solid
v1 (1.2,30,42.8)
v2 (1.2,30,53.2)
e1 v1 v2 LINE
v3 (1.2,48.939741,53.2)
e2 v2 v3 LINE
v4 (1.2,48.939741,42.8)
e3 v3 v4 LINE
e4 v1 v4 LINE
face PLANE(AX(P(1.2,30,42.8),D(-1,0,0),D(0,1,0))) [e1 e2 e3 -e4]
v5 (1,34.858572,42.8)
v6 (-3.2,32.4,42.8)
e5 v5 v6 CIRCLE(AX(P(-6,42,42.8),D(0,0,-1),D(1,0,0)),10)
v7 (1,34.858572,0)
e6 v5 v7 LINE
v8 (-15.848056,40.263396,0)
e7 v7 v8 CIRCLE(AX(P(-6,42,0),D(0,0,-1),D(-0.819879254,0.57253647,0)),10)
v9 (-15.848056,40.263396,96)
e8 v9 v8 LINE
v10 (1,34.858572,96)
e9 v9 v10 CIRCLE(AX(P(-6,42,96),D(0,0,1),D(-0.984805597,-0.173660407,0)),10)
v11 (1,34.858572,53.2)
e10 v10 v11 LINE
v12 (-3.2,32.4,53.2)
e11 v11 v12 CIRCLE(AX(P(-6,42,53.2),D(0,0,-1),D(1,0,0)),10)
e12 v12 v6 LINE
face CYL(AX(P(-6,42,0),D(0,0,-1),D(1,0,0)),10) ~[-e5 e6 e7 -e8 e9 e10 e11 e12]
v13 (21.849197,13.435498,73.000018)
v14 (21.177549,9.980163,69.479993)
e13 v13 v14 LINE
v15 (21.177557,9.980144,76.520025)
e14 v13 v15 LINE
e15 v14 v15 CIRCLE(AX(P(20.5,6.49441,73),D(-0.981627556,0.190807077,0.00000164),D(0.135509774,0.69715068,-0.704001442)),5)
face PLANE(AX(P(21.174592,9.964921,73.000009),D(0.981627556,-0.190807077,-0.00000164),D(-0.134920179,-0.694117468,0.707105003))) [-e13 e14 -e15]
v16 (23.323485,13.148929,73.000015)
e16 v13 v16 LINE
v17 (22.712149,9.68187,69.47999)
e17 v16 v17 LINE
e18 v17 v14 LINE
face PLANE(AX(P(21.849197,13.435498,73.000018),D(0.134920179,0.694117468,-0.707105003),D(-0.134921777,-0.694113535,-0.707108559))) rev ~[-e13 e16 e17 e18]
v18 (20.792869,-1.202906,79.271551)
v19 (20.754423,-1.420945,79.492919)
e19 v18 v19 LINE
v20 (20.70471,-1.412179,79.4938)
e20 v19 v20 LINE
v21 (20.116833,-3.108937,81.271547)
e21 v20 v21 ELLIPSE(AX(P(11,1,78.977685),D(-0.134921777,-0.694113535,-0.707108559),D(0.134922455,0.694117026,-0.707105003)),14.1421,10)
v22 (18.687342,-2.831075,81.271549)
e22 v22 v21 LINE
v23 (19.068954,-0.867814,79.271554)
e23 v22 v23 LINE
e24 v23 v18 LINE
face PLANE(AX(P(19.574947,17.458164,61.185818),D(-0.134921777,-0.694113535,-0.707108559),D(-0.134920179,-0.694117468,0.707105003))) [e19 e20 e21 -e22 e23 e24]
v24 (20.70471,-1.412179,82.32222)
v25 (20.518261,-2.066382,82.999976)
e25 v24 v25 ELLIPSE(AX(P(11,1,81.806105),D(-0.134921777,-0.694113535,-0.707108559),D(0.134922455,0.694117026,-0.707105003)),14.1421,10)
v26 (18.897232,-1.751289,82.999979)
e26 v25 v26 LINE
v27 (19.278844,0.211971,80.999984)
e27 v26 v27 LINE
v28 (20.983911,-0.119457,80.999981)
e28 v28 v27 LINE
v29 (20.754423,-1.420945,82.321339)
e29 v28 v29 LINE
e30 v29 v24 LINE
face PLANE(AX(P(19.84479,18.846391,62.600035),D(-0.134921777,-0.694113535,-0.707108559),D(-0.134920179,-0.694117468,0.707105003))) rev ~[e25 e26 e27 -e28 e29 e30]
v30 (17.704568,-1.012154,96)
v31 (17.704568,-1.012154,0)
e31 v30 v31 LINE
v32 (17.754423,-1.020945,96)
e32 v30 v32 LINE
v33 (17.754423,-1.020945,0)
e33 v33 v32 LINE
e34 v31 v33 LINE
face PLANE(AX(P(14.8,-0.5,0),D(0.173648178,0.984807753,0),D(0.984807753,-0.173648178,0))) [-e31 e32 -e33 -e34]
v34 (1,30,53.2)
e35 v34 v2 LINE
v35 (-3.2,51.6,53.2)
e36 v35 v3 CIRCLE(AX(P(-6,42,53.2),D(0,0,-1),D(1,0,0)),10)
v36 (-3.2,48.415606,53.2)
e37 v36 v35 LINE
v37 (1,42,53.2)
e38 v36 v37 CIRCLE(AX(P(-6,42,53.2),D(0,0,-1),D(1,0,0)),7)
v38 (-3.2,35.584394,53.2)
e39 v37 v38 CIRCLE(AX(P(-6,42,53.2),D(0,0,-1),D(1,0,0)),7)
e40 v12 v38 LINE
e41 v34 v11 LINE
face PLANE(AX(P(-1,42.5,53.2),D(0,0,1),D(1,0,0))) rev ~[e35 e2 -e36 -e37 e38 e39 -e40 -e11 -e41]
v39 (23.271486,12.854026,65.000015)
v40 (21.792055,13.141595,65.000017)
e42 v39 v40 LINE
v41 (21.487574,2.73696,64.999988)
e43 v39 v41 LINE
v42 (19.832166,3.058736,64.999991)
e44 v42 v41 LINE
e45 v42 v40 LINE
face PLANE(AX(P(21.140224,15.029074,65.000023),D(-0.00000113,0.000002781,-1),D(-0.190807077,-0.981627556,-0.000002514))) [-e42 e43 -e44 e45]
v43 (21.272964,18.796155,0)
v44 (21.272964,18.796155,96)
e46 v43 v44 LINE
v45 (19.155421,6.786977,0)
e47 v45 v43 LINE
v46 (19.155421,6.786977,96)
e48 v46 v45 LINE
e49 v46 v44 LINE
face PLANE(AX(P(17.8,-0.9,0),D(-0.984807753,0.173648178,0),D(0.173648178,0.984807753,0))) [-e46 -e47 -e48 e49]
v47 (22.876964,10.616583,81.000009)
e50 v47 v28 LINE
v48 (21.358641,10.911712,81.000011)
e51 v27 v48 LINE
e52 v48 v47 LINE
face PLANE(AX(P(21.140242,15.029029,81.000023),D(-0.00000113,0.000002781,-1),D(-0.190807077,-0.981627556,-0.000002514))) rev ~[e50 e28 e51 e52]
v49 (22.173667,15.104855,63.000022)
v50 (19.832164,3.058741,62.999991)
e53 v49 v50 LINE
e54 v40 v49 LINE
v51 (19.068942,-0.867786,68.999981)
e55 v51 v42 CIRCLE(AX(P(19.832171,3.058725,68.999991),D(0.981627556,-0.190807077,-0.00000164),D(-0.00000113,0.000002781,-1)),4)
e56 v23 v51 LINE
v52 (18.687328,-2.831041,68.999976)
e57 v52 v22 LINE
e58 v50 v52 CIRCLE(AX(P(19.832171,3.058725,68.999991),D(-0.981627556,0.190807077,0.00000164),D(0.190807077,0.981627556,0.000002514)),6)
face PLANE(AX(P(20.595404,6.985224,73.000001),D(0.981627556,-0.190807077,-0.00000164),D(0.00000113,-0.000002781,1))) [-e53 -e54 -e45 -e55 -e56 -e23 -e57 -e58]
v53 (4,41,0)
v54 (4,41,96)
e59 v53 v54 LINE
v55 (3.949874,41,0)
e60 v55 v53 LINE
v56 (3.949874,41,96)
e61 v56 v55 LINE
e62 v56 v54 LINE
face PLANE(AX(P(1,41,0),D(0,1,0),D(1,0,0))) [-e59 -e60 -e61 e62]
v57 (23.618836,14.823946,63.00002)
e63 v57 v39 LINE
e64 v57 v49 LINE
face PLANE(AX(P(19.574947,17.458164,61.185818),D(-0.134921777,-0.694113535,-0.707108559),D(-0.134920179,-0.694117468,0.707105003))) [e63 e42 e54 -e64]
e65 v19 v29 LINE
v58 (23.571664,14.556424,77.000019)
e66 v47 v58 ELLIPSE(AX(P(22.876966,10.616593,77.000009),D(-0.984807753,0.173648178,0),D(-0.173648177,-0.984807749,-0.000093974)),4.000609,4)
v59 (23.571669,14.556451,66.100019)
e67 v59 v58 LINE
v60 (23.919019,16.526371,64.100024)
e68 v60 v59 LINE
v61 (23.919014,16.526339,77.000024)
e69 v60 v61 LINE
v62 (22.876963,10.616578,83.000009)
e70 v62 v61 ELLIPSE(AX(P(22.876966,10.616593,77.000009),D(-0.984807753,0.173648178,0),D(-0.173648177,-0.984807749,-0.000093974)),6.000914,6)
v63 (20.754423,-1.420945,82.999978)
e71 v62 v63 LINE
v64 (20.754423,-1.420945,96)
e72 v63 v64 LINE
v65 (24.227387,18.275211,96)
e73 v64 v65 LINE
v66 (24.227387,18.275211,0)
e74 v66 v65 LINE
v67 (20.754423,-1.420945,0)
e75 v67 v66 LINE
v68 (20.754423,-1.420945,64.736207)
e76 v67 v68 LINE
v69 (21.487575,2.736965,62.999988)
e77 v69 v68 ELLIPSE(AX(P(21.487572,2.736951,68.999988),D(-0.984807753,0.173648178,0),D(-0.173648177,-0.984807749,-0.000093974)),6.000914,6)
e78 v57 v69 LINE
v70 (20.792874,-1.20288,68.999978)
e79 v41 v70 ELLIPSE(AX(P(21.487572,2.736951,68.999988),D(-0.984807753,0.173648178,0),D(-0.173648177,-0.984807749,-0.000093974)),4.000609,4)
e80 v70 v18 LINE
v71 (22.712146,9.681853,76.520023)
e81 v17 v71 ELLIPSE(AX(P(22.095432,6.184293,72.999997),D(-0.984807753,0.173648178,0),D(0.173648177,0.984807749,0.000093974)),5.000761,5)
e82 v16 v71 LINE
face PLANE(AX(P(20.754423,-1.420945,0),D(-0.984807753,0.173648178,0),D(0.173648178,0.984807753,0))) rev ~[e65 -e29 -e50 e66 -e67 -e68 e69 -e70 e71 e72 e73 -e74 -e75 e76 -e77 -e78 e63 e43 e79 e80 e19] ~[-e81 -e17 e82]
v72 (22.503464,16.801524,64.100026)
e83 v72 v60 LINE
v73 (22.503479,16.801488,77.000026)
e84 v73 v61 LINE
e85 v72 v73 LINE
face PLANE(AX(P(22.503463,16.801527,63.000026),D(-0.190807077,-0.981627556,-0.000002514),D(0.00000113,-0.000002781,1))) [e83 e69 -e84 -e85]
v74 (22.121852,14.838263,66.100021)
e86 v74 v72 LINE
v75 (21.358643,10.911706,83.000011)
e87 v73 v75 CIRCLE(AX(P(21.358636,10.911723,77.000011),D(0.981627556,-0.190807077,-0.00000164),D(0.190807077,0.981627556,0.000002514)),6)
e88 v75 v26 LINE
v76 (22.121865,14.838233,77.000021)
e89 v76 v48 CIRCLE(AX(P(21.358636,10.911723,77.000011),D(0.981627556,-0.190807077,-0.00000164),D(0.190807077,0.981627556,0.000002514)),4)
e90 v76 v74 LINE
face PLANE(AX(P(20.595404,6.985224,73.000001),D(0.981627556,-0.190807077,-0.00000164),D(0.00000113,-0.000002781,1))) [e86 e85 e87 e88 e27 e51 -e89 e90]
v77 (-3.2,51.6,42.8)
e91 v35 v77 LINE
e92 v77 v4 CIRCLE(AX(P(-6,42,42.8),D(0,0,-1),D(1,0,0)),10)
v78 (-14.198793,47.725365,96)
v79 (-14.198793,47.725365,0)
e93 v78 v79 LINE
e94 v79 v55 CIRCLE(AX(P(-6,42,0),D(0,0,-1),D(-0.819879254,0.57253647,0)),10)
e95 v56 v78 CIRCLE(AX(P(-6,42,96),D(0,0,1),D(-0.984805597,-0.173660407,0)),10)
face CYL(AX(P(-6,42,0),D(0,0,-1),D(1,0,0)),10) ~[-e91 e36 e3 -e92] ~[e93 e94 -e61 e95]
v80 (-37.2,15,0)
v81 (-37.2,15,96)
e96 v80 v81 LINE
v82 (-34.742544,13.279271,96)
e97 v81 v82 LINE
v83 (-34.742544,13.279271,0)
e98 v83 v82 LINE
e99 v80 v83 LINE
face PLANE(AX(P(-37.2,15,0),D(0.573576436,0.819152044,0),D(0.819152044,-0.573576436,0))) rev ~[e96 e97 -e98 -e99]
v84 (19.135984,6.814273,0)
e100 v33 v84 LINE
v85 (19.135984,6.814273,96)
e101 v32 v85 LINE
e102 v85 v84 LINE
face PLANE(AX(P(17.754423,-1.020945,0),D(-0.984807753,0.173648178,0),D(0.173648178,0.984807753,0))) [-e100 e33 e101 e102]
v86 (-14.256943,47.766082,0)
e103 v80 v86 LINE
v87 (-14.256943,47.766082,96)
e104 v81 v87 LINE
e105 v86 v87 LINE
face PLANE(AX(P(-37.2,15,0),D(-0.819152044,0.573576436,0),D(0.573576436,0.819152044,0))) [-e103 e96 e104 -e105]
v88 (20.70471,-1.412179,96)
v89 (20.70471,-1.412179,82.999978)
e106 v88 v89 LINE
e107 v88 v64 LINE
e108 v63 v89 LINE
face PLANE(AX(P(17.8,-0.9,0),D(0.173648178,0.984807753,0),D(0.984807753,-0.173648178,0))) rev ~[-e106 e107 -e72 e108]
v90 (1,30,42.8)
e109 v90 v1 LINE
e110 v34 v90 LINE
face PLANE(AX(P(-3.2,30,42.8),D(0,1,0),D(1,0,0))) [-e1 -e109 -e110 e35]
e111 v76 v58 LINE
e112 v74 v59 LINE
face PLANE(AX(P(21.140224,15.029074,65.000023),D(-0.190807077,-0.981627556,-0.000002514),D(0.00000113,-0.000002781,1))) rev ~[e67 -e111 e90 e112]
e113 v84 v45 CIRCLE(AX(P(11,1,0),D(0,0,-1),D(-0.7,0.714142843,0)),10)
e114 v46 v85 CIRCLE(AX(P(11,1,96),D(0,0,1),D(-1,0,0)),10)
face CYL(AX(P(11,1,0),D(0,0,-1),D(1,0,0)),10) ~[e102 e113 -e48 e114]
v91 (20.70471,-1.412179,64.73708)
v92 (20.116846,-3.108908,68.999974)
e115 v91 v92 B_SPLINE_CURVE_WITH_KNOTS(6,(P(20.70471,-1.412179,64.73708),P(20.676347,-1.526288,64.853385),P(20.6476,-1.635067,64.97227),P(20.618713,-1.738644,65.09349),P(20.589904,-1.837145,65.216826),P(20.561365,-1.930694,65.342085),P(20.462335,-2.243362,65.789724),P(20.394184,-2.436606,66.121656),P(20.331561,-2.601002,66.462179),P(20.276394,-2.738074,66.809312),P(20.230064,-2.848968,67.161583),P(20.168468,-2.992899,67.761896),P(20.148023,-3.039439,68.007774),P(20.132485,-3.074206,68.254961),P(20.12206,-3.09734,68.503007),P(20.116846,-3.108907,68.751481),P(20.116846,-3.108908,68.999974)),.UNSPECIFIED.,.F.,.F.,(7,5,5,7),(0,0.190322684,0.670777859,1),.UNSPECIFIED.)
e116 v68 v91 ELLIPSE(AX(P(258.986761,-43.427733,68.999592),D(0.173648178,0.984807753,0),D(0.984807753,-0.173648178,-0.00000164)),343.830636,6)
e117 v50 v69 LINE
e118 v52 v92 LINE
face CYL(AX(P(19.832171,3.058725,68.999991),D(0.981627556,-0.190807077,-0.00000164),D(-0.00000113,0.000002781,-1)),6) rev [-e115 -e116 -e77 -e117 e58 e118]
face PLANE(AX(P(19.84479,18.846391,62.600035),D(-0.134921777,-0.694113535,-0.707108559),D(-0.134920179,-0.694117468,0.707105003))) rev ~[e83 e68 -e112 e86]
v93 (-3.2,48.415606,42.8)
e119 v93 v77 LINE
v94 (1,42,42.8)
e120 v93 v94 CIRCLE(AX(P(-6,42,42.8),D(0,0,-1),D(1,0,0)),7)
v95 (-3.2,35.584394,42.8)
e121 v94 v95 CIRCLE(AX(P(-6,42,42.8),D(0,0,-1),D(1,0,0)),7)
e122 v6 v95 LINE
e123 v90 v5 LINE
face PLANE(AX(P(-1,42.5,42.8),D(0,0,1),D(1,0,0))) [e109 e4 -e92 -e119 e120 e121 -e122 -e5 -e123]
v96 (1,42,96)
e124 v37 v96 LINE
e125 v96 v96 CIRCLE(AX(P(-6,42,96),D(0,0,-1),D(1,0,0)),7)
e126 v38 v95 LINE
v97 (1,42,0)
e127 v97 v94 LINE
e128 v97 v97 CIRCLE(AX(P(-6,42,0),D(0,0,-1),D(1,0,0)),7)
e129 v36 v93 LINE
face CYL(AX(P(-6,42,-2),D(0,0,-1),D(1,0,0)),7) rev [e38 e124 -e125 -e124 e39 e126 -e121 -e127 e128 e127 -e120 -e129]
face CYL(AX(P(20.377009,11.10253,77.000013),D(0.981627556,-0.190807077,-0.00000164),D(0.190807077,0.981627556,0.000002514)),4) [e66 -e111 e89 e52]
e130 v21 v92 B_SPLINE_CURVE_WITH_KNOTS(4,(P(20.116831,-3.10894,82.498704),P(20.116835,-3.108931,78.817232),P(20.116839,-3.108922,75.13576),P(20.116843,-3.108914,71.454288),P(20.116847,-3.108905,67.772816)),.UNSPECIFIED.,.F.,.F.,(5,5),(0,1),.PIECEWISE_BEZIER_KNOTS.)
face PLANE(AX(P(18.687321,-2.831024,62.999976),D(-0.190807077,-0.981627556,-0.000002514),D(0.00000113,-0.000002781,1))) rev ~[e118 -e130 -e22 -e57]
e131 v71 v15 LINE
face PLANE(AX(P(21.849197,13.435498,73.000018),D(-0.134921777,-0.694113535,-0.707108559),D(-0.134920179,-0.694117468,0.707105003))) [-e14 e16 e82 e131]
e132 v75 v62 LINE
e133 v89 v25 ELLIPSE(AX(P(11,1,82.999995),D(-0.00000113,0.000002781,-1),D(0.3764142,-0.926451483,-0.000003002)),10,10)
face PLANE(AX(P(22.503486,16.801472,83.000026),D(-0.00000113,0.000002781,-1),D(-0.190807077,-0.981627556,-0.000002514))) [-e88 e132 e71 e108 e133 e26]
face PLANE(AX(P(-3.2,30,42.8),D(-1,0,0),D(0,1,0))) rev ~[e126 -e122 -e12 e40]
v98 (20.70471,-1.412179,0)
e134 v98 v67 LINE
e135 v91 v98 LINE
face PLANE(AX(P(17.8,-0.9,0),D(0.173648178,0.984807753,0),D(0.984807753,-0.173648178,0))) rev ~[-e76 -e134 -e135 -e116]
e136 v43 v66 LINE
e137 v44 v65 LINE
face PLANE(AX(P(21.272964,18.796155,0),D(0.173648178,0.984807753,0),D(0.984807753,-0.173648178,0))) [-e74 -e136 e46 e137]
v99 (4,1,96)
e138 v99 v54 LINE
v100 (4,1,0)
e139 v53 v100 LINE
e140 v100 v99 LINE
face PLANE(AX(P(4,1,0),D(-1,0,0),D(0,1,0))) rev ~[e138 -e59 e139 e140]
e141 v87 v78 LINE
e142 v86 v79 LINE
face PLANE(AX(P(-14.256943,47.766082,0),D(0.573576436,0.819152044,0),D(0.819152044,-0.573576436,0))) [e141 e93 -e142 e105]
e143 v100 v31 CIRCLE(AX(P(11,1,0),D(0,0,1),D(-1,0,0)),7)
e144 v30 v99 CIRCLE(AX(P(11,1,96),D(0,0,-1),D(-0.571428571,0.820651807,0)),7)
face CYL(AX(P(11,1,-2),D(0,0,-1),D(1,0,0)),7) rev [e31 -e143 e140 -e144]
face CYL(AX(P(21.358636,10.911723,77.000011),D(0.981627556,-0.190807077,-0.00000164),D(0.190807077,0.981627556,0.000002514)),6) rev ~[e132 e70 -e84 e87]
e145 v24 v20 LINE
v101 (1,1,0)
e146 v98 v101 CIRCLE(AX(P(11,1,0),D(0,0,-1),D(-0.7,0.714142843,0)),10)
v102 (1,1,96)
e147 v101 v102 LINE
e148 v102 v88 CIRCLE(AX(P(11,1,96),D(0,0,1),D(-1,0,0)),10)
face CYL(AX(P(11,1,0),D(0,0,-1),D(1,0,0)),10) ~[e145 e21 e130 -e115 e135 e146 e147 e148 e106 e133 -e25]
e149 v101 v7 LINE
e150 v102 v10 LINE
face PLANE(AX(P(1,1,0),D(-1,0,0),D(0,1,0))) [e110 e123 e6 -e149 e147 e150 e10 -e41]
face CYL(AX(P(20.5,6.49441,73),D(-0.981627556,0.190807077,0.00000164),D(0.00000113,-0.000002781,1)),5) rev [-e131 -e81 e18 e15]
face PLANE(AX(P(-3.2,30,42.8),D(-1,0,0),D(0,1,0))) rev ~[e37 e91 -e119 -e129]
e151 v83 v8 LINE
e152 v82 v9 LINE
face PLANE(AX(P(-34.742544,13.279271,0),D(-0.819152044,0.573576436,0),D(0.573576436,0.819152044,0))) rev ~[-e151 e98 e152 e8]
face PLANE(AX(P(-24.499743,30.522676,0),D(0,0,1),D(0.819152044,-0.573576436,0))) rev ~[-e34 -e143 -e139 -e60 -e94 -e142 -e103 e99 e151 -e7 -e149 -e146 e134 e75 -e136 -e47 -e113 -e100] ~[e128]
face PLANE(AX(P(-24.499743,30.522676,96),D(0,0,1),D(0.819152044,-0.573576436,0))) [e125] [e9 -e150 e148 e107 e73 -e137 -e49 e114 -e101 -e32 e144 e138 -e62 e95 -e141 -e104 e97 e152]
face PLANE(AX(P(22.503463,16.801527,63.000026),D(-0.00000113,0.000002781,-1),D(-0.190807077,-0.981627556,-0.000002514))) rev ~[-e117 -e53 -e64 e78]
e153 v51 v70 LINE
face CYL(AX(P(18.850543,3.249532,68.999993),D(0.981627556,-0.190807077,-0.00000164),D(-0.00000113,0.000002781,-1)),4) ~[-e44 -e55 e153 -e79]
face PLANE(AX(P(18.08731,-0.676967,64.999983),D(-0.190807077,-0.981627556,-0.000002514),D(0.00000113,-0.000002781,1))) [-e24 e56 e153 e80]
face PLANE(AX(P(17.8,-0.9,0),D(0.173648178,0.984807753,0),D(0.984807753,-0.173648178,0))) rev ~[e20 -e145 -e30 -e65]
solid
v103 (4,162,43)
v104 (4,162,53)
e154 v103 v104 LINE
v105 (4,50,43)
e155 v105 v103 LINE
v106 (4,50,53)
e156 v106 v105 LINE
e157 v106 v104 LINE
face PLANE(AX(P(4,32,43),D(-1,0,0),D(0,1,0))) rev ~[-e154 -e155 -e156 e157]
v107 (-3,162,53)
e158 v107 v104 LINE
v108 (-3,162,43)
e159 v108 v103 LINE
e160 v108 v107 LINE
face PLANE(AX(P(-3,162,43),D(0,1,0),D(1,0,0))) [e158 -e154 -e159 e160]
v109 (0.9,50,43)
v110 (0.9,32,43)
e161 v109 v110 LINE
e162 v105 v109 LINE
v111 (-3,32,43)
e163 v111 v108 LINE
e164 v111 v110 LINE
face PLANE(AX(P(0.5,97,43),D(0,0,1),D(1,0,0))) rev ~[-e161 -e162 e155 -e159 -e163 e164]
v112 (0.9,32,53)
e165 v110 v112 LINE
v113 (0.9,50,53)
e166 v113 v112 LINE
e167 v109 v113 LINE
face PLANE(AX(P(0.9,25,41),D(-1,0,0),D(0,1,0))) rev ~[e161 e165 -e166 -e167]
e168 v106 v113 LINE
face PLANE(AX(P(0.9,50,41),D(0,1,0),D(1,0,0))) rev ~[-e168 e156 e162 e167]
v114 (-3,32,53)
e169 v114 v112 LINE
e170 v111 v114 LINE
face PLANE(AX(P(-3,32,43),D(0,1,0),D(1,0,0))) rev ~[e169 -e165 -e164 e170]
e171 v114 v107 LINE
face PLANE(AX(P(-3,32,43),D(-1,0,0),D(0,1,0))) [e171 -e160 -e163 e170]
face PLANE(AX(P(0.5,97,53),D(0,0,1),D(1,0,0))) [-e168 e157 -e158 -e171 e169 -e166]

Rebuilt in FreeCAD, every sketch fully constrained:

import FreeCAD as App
import Part
import Sketcher
from FreeCAD import Vector


def edges_at(feature, points):
    """Names of the edges that pass closest to the given points."""
    edges = feature.Shape.Edges
    near = lambda p: min(range(len(edges)), key=lambda i: edges[i].distToShape(Part.Vertex(*p))[0])
    return sorted({f"Edge{near(p) + 1}" for p in points})


def add_polygon(sketch, points):
    """Adds a closed chain of lines whose ends are joined by coincident constraints."""
    first, n = sketch.GeometryCount, len(points)
    for a, b in zip(points, points[1:] + points[:1]):
        sketch.addGeometry(Part.LineSegment(App.Vector(*a, 0), App.Vector(*b, 0)), False)
    for i in range(n):
        sketch.addConstraint(Sketcher.Constraint("Coincident", first + i, 2, first + (i + 1) % n, 1))

doc = App.newDocument("Part")
body = doc.addObject("PartDesign::Body", "Body")

# Sketch on XY plane
sketch1 = body.newObject("Sketcher::SketchObject", "Sketch")
sketch1.AttachmentSupport = (doc.getObject("XY_Plane"), [""])
sketch1.MapMode = "FlatFace"
sketch1.AttachmentOffset = App.Placement(Vector(0, 0, 41), App.Rotation())
add_polygon(sketch1, [(1, 50), (1, 25), (11, 25), (11, 50)])  # lines 0-3
sketch1.addConstraint([
    Sketcher.Constraint("Vertical", 0),
    Sketcher.Constraint("Horizontal", 1),
    Sketcher.Constraint("Vertical", 2),
    Sketcher.Constraint("Horizontal", 3),
    Sketcher.Constraint("DistanceX", 1, 1, 1, 2, 10.0),
    Sketcher.Constraint("DistanceY", 0, 2, 0, 1, 25.0),
    Sketcher.Constraint("DistanceY", -1, 1, 0, 2, 25.0),
    Sketcher.Constraint("DistanceX", -1, 1, 0, 2, 0.9),
])
pad1 = body.newObject("PartDesign::Pad", "Pad")
pad1.Profile = sketch1
pad1.Length = 13
body2 = doc.addObject("PartDesign::Body", "Body001")

# Sketch on XY plane
sketch2 = body2.newObject("Sketcher::SketchObject", "Sketch001")
sketch2.AttachmentSupport = (doc.getObject("XY_Plane001"), [""])
sketch2.MapMode = "FlatFace"
sketch2.AttachmentOffset = App.Placement(Vector(0, 0, 43), App.Rotation())
add_polygon(sketch2, [(-3, 162), (-3, 32), (4, 32), (4, 162)])  # lines 0-3
sketch2.addConstraint([
    Sketcher.Constraint("Vertical", 0),
    Sketcher.Constraint("Horizontal", 1),
    Sketcher.Constraint("Vertical", 2),
    Sketcher.Constraint("Horizontal", 3),
    Sketcher.Constraint("DistanceX", 1, 1, 1, 2, 7.0),
    Sketcher.Constraint("DistanceY", 0, 2, 0, 1, 130.0),
    Sketcher.Constraint("DistanceX", 0, 2, -1, 1, 3.0),
    Sketcher.Constraint("DistanceY", -1, 1, 0, 2, 32.0),
])
pad2 = body2.newObject("PartDesign::Pad", "Pad001")
pad2.Profile = sketch2
pad2.Length = 10
doc.recompute()

boolean = body2.newObject("PartDesign::Boolean", "Boolean")
boolean.Type = "Cut"
boolean.addObjects([body])
body3 = doc.addObject("PartDesign::Body", "Body002")

# Sketch on XY plane
sketch3 = body3.newObject("Sketcher::SketchObject", "Sketch002")
sketch3.AttachmentSupport = (doc.getObject("XY_Plane002"), [""])
sketch3.MapMode = "FlatFace"
add_polygon(sketch3, [(0, 5), (0, 0), (5, 0), (5, 5)])  # lines 0-3
sketch3.addConstraint([
    Sketcher.Constraint("Vertical", 0),
    Sketcher.Constraint("Horizontal", 1),
    Sketcher.Constraint("Vertical", 2),
    Sketcher.Constraint("Horizontal", 3),
    Sketcher.Constraint("Coincident", 0, 2, -1, 1),
    Sketcher.Constraint("Equal", 3, 0),
    Sketcher.Constraint("DistanceX", 1, 1, 1, 2, 5.0),
])
pad3 = body3.newObject("PartDesign::Pad", "Pad002")
pad3.Profile = sketch3
pad3.Length = 3
body4 = doc.addObject("PartDesign::Body", "Body003")
doc.recompute()

body3.Placement = App.Placement(Vector(0, -7.071, 0), App.Rotation(Vector(0, 0, 1), 45))
boolean2 = body4.newObject("PartDesign::Boolean", "Boolean001")
boolean2.Type = "Fuse"
boolean2.addObjects([body3])
body5 = doc.addObject("PartDesign::Body", "Body004")

# Sketch on XY plane
sketch4 = body5.newObject("Sketcher::SketchObject", "Sketch003")
sketch4.AttachmentSupport = (doc.getObject("XY_Plane004"), [""])
sketch4.MapMode = "FlatFace"
sketch4.addGeometry(Part.Circle(Vector(0, 0, 0), Vector(0, 0, 1), 5), False)
sketch4.addConstraint([
    Sketcher.Constraint("Coincident", 0, 3, -1, 1),
    Sketcher.Constraint("Diameter", 0, 10.0),
])
pad4 = body5.newObject("PartDesign::Pad", "Pad003")
pad4.Profile = sketch4
pad4.Length = 3
doc.recompute()

boolean3 = body5.newObject("PartDesign::Boolean", "Boolean002")
boolean3.Type = "Fuse"
boolean3.addObjects([body4])
body6 = doc.addObject("PartDesign::Body", "Body005")

# Sketch on XY plane
sketch5 = body6.newObject("Sketcher::SketchObject", "Sketch004")
sketch5.AttachmentSupport = (doc.getObject("XY_Plane005"), [""])
sketch5.MapMode = "FlatFace"
add_polygon(sketch5, [(0, 2), (0, 0), (34, 0), (34, 2)])  # lines 0-3
sketch5.addConstraint([
    Sketcher.Constraint("Vertical", 0),
    Sketcher.Constraint("Horizontal", 1),
    Sketcher.Constraint("Vertical", 2),
    Sketcher.Constraint("Horizontal", 3),
    Sketcher.Constraint("Coincident", 0, 2, -1, 1),
    Sketcher.Constraint("DistanceX", 1, 1, 1, 2, 34.0),
    Sketcher.Constraint("DistanceY", 0, 2, 0, 1, 2.0),
])
pad5 = body6.newObject("PartDesign::Pad", "Pad004")
pad5.Profile = sketch5
pad5.Length = 10
body7 = doc.addObject("PartDesign::Body", "Body006")
doc.recompute()

body6.Placement = App.Placement(Vector(-10.4, -12, -3), App.Rotation(Vector(0, 0, 1), 45))
boolean4 = body7.newObject("PartDesign::Boolean", "Boolean003")
boolean4.Type = "Fuse"
boolean4.addObjects([body6])
body8 = doc.addObject("PartDesign::Body", "Body007")

# Sketch on XY plane
sketch6 = body8.newObject("Sketcher::SketchObject", "Sketch005")
sketch6.AttachmentSupport = (doc.getObject("XY_Plane007"), [""])
sketch6.MapMode = "FlatFace"
sketch6.AttachmentOffset = App.Placement(Vector(0, 0, -1), App.Rotation())
add_polygon(sketch6, [(-8, 8), (-8, -8), (8, -8), (8, 8)])  # lines 0-3
sketch6.addConstraint([
    Sketcher.Constraint("Vertical", 0),
    Sketcher.Constraint("Horizontal", 1),
    Sketcher.Constraint("Vertical", 2),
    Sketcher.Constraint("Horizontal", 3),
    Sketcher.Constraint("Equal", 3, 0),
    Sketcher.Constraint("DistanceX", 1, 1, 1, 2, 16.0),
    Sketcher.Constraint("DistanceX", 0, 2, -1, 1, 8.0),
    Sketcher.Constraint("DistanceY", 0, 2, -1, 1, 8.5),
])
pad6 = body8.newObject("PartDesign::Pad", "Pad005")
pad6.Profile = sketch6
pad6.Length = 6
doc.recompute()

fillet = body8.newObject("PartDesign::Fillet", "Fillet")
fillet.Base = (pad6, edges_at(pad6, [(-8, 7.5, 2)]))
fillet.Radius = 4
doc.recompute()

fillet2 = body8.newObject("PartDesign::Fillet", "Fillet001")
fillet2.Base = (fillet, edges_at(fillet, [(8, -8.5, 2)]))
fillet2.Radius = 4
body9 = doc.addObject("PartDesign::Body", "Body008")
body9.AllowCompound = True

# Sketch on XY plane
sketch7 = body9.newObject("Sketcher::SketchObject", "Sketch006")
sketch7.AttachmentSupport = (doc.getObject("XY_Plane008"), [""])
sketch7.MapMode = "FlatFace"
add_polygon(sketch7, [(-10, 10), (-10, -10), (10, -10), (10, 10)])  # lines 0-3
sketch7.addConstraint([
    Sketcher.Constraint("Vertical", 0),
    Sketcher.Constraint("Horizontal", 1),
    Sketcher.Constraint("Vertical", 2),
    Sketcher.Constraint("Horizontal", 3),
    Sketcher.Constraint("Equal", 3, 0),
    Sketcher.Constraint("DistanceX", 1, 1, 1, 2, 20.0),
    Sketcher.Constraint("DistanceX", 0, 2, -1, 1, 10.0),
    Sketcher.Constraint("DistanceY", 0, 2, -1, 1, 10.5),
])
pad7 = body9.newObject("PartDesign::Pad", "Pad006")
pad7.Profile = sketch7
pad7.Length = 3
doc.recompute()

fillet3 = body9.newObject("PartDesign::Fillet", "Fillet002")
fillet3.Base = (pad7, edges_at(pad7, [(10, -10.5, 1.5)]))
fillet3.Radius = 6
doc.recompute()

fillet4 = body9.newObject("PartDesign::Fillet", "Fillet003")
fillet4.Base = (fillet3, edges_at(fillet3, [(-10, 9.5, 1.5)]))
fillet4.Radius = 6
doc.recompute()

boolean5 = body9.newObject("PartDesign::Boolean", "Boolean004")
boolean5.Type = "Cut"
boolean5.addObjects([body8])
doc.recompute()

boolean6 = body9.newObject("PartDesign::Boolean", "Boolean005")
boolean6.Type = "Cut"
boolean6.addObjects([body7])
doc.recompute()

boolean7 = body9.newObject("PartDesign::Boolean", "Boolean006")
boolean7.Type = "Fuse"
boolean7.addObjects([body5])
body10 = doc.addObject("PartDesign::Body", "Body009")
body10.AllowCompound = True
doc.recompute()

body9.Placement = App.Placement(Vector(0, 0, 0), App.Rotation(Vector(1, 0, 0), 236.888366))
boolean8 = body10.newObject("PartDesign::Boolean", "Boolean007")
boolean8.Type = "Fuse"
boolean8.addObjects([body9])
body11 = doc.addObject("PartDesign::Body", "Body010")
body11.AllowCompound = True
doc.recompute()

body10.Placement = App.Placement(Vector(0, 0, 0), App.Rotation(Vector(0, 1, 0), 270.000172))
boolean9 = body11.newObject("PartDesign::Boolean", "Boolean008")
boolean9.Type = "Fuse"
boolean9.addObjects([body10])
body12 = doc.addObject("PartDesign::Body", "Body011")
body12.AllowCompound = True
doc.recompute()

body11.Placement = App.Placement(Vector(20.5, 6.49441, 73), App.Rotation(Vector(0, 0, 1), 292.111746))
boolean10 = body12.newObject("PartDesign::Boolean", "Boolean009")
boolean10.Type = "Fuse"
boolean10.addObjects([body11])
body13 = doc.addObject("PartDesign::Body", "Body012")

# Sketch on XY plane
sketch8 = body13.newObject("Sketcher::SketchObject", "Sketch007")
sketch8.AttachmentSupport = (doc.getObject("XY_Plane012"), [""])
sketch8.MapMode = "FlatFace"
add_polygon(sketch8, [(0, 10), (0, 0), (12, 0), (12, 10)])  # lines 0-3
sketch8.addConstraint([
    Sketcher.Constraint("Vertical", 0),
    Sketcher.Constraint("Horizontal", 1),
    Sketcher.Constraint("Vertical", 2),
    Sketcher.Constraint("Horizontal", 3),
    Sketcher.Constraint("Coincident", 0, 2, -1, 1),
    Sketcher.Constraint("DistanceX", 1, 1, 1, 2, 12.0),
    Sketcher.Constraint("DistanceY", 0, 2, 0, 1, 10.0),
])
pad8 = body13.newObject("PartDesign::Pad", "Pad007")
pad8.Profile = sketch8
pad8.Length = 100
body14 = doc.addObject("PartDesign::Body", "Body013")
doc.recompute()

body13.Placement = App.Placement(Vector(5, 6, -1), App.Rotation(Vector(0, 0, 1), 351))
boolean11 = body14.newObject("PartDesign::Boolean", "Boolean010")
boolean11.Type = "Fuse"
boolean11.addObjects([body13])
body15 = doc.addObject("PartDesign::Body", "Body014")

# Sketch on XY plane
sketch9 = body15.newObject("Sketcher::SketchObject", "Sketch008")
sketch9.AttachmentSupport = (doc.getObject("XY_Plane014"), [""])
sketch9.MapMode = "FlatFace"
add_polygon(sketch9, [(0, 20), (0, 0), (3, 0), (3, 20)])  # lines 0-3
sketch9.addConstraint([
    Sketcher.Constraint("Vertical", 0),
    Sketcher.Constraint("Horizontal", 1),
    Sketcher.Constraint("Vertical", 2),
    Sketcher.Constraint("Horizontal", 3),
    Sketcher.Constraint("Coincident", 0, 2, -1, 1),
    Sketcher.Constraint("DistanceX", 1, 1, 1, 2, 3.0),
    Sketcher.Constraint("DistanceY", 0, 2, 0, 1, 20.0),
])
pad9 = body15.newObject("PartDesign::Pad", "Pad008")
pad9.Profile = sketch9
pad9.Length = 96
body16 = doc.addObject("PartDesign::Body", "Body015")
doc.recompute()

body15.Placement = App.Placement(Vector(14.8, -0.5, 0), App.Rotation(Vector(0, 0, 1), 350))
boolean12 = body16.newObject("PartDesign::Boolean", "Boolean011")
boolean12.Type = "Fuse"
boolean12.addObjects([body15])
body17 = doc.addObject("PartDesign::Body", "Body016")

# Sketch on XY plane
sketch10 = body17.newObject("Sketcher::SketchObject", "Sketch009")
sketch10.AttachmentSupport = (doc.getObject("XY_Plane016"), [""])
sketch10.MapMode = "FlatFace"
add_polygon(sketch10, [(4, 41), (4, 1), (7, 1), (7, 41)])  # lines 0-3
sketch10.addConstraint([
    Sketcher.Constraint("Vertical", 0),
    Sketcher.Constraint("Horizontal", 1),
    Sketcher.Constraint("Vertical", 2),
    Sketcher.Constraint("Horizontal", 3),
    Sketcher.Constraint("DistanceX", 1, 1, 1, 2, 3.0),
    Sketcher.Constraint("DistanceY", 0, 2, 0, 1, 40.0),
    Sketcher.Constraint("DistanceX", -1, 1, 0, 2, 4.0),
    Sketcher.Constraint("DistanceY", -1, 1, 0, 2, 1.0),
])
pad10 = body17.newObject("PartDesign::Pad", "Pad009")
pad10.Profile = sketch10
pad10.Length = 96
body18 = doc.addObject("PartDesign::Body", "Body017")

# Sketch on XY plane
sketch11 = body18.newObject("Sketcher::SketchObject", "Sketch010")
sketch11.AttachmentSupport = (doc.getObject("XY_Plane017"), [""])
sketch11.MapMode = "FlatFace"
sketch11.AttachmentOffset = App.Placement(Vector(0, 0, 42.8), App.Rotation())
add_polygon(sketch11, [(-3.2, 55), (-3.2, 30), (1.2, 30), (1.2, 55)])  # lines 0-3
sketch11.addConstraint([
    Sketcher.Constraint("Vertical", 0),
    Sketcher.Constraint("Horizontal", 1),
    Sketcher.Constraint("Vertical", 2),
    Sketcher.Constraint("Horizontal", 3),
    Sketcher.Constraint("DistanceY", 0, 2, 0, 1, 25.0),
    Sketcher.Constraint("DistanceX", 1, 1, 1, 2, 4.4),
    Sketcher.Constraint("DistanceY", -1, 1, 0, 2, 30.0),
    Sketcher.Constraint("DistanceX", 0, 2, -1, 1, 3.2),
])
pad11 = body18.newObject("PartDesign::Pad", "Pad010")
pad11.Profile = sketch11
pad11.Length = 10.4
body19 = doc.addObject("PartDesign::Body", "Body018")

# Sketch on XY plane
sketch12 = body19.newObject("Sketcher::SketchObject", "Sketch011")
sketch12.AttachmentSupport = (doc.getObject("XY_Plane018"), [""])
sketch12.MapMode = "FlatFace"
sketch12.AttachmentOffset = App.Placement(Vector(0, 0, -2), App.Rotation())
sketch12.addGeometry(Part.Circle(Vector(-6, 42, 0), Vector(0, 0, 1), 7), False)
sketch12.addConstraint([
    Sketcher.Constraint("Diameter", 0, 14.0),
    Sketcher.Constraint("DistanceX", 0, 3, -1, 1, 6.0),
    Sketcher.Constraint("DistanceY", -1, 1, 0, 3, 42.0),
])
pad12 = body19.newObject("PartDesign::Pad", "Pad011")
pad12.Profile = sketch12
pad12.Length = 100
body20 = doc.addObject("PartDesign::Body", "Body019")

# Sketch on XY plane
sketch13 = body20.newObject("Sketcher::SketchObject", "Sketch012")
sketch13.AttachmentSupport = (doc.getObject("XY_Plane019"), [""])
sketch13.MapMode = "FlatFace"
sketch13.AttachmentOffset = App.Placement(Vector(0, 0, -2), App.Rotation())
sketch13.addGeometry(Part.Circle(Vector(11, 1, 0), Vector(0, 0, 1), 7), False)
sketch13.addConstraint([
    Sketcher.Constraint("Diameter", 0, 14.0),
    Sketcher.Constraint("DistanceX", -1, 1, 0, 3, 11.0),
    Sketcher.Constraint("DistanceY", -1, 1, 0, 3, 1.0),
])
pad13 = body20.newObject("PartDesign::Pad", "Pad012")
pad13.Profile = sketch13
pad13.Length = 102
body21 = doc.addObject("PartDesign::Body", "Body020")

# Sketch on XY plane
sketch14 = body21.newObject("Sketcher::SketchObject", "Sketch013")
sketch14.AttachmentSupport = (doc.getObject("XY_Plane020"), [""])
sketch14.MapMode = "FlatFace"
add_polygon(sketch14, [(0, 40), (0, 0), (3, 0), (3, 40)])  # lines 0-3
sketch14.addConstraint([
    Sketcher.Constraint("Vertical", 0),
    Sketcher.Constraint("Horizontal", 1),
    Sketcher.Constraint("Vertical", 2),
    Sketcher.Constraint("Horizontal", 3),
    Sketcher.Constraint("Coincident", 0, 2, -1, 1),
    Sketcher.Constraint("DistanceX", 1, 1, 1, 2, 3.0),
    Sketcher.Constraint("DistanceY", 0, 2, 0, 1, 40.0),
])
pad14 = body21.newObject("PartDesign::Pad", "Pad013")
pad14.Profile = sketch14
pad14.Length = 96
body22 = doc.addObject("PartDesign::Body", "Body021")
doc.recompute()

body21.Placement = App.Placement(Vector(-37.2, 15, 0), App.Rotation(Vector(0, 0, 1), 325))
boolean13 = body22.newObject("PartDesign::Boolean", "Boolean012")
boolean13.Type = "Fuse"
boolean13.addObjects([body21])
body23 = doc.addObject("PartDesign::Body", "Body022")

# Sketch on XY plane
sketch15 = body23.newObject("Sketcher::SketchObject", "Sketch014")
sketch15.AttachmentSupport = (doc.getObject("XY_Plane022"), [""])
sketch15.MapMode = "FlatFace"
sketch15.addGeometry(Part.Circle(Vector(-6, 42, 0), Vector(0, 0, 1), 10), False)
sketch15.addConstraint([
    Sketcher.Constraint("Diameter", 0, 20.0),
    Sketcher.Constraint("DistanceX", 0, 3, -1, 1, 6.0),
    Sketcher.Constraint("DistanceY", -1, 1, 0, 3, 42.0),
])
pad15 = body23.newObject("PartDesign::Pad", "Pad014")
pad15.Profile = sketch15
pad15.Length = 96
doc.recompute()

boolean14 = body23.newObject("PartDesign::Boolean", "Boolean013")
boolean14.Type = "Fuse"
boolean14.addObjects([body22])
body24 = doc.addObject("PartDesign::Body", "Body023")

# Sketch on XY plane
sketch16 = body24.newObject("Sketcher::SketchObject", "Sketch015")
sketch16.AttachmentSupport = (doc.getObject("XY_Plane023"), [""])
sketch16.MapMode = "FlatFace"
add_polygon(sketch16, [(1, 41), (1, 1), (4, 1), (4, 41)])  # lines 0-3
sketch16.addConstraint([
    Sketcher.Constraint("Vertical", 0),
    Sketcher.Constraint("Horizontal", 1),
    Sketcher.Constraint("Vertical", 2),
    Sketcher.Constraint("Horizontal", 3),
    Sketcher.Constraint("DistanceX", 1, 1, 1, 2, 3.0),
    Sketcher.Constraint("DistanceY", 0, 2, 0, 1, 40.0),
    Sketcher.Constraint("DistanceX", -1, 1, 0, 2, 1.0),
    Sketcher.Constraint("DistanceY", -1, 1, 0, 2, 1.0),
])
pad16 = body24.newObject("PartDesign::Pad", "Pad015")
pad16.Profile = sketch16
pad16.Length = 96
doc.recompute()

boolean15 = body24.newObject("PartDesign::Boolean", "Boolean014")
boolean15.Type = "Fuse"
boolean15.addObjects([body23])
body25 = doc.addObject("PartDesign::Body", "Body024")

# Sketch on XY plane
sketch17 = body25.newObject("Sketcher::SketchObject", "Sketch016")
sketch17.AttachmentSupport = (doc.getObject("XY_Plane024"), [""])
sketch17.MapMode = "FlatFace"
sketch17.addGeometry(Part.Circle(Vector(11, 1, 0), Vector(0, 0, 1), 10), False)
sketch17.addConstraint([
    Sketcher.Constraint("Diameter", 0, 20.0),
    Sketcher.Constraint("DistanceX", -1, 1, 0, 3, 11.0),
    Sketcher.Constraint("DistanceY", -1, 1, 0, 3, 1.0),
])
pad17 = body25.newObject("PartDesign::Pad", "Pad016")
pad17.Profile = sketch17
pad17.Length = 96
doc.recompute()

boolean16 = body25.newObject("PartDesign::Boolean", "Boolean015")
boolean16.Type = "Fuse"
boolean16.addObjects([body24])
doc.recompute()

boolean17 = body25.newObject("PartDesign::Boolean", "Boolean016")
boolean17.Type = "Cut"
boolean17.addObjects([body20])
doc.recompute()

boolean18 = body25.newObject("PartDesign::Boolean", "Boolean017")
boolean18.Type = "Cut"
boolean18.addObjects([body19])
doc.recompute()

boolean19 = body25.newObject("PartDesign::Boolean", "Boolean018")
boolean19.Type = "Cut"
boolean19.addObjects([body18])
doc.recompute()

boolean20 = body25.newObject("PartDesign::Boolean", "Boolean019")
boolean20.Type = "Cut"
boolean20.addObjects([body17])
body26 = doc.addObject("PartDesign::Body", "Body025")

# Sketch on XY plane
sketch18 = body26.newObject("Sketcher::SketchObject", "Sketch017")
sketch18.AttachmentSupport = (doc.getObject("XY_Plane025"), [""])
sketch18.MapMode = "FlatFace"
add_polygon(sketch18, [(0, 20), (0, 0), (3, 0), (3, 20)])  # lines 0-3
sketch18.addConstraint([
    Sketcher.Constraint("Vertical", 0),
    Sketcher.Constraint("Horizontal", 1),
    Sketcher.Constraint("Vertical", 2),
    Sketcher.Constraint("Horizontal", 3),
    Sketcher.Constraint("Coincident", 0, 2, -1, 1),
    Sketcher.Constraint("DistanceX", 1, 1, 1, 2, 3.0),
    Sketcher.Constraint("DistanceY", 0, 2, 0, 1, 20.0),
])
pad18 = body26.newObject("PartDesign::Pad", "Pad017")
pad18.Profile = sketch18
pad18.Length = 96
body27 = doc.addObject("PartDesign::Body", "Body026")
body27.AllowCompound = True
doc.recompute()

body26.Placement = App.Placement(Vector(17.8, -0.9, 0), App.Rotation(Vector(0, 0, 1), 350))
boolean21 = body27.newObject("PartDesign::Boolean", "Boolean020")
boolean21.Type = "Fuse"
boolean21.addObjects([body26])
doc.recompute()

boolean22 = body27.newObject("PartDesign::Boolean", "Boolean021")
boolean22.Type = "Fuse"
boolean22.addObjects([body25])
doc.recompute()

boolean23 = body27.newObject("PartDesign::Boolean", "Boolean022")
boolean23.Type = "Cut"
boolean23.addObjects([body16])
doc.recompute()

boolean24 = body27.newObject("PartDesign::Boolean", "Boolean023")
boolean24.Type = "Cut"
boolean24.addObjects([body14])
doc.recompute()

boolean25 = body27.newObject("PartDesign::Boolean", "Boolean024")
boolean25.Type = "Cut"
boolean25.addObjects([body12])

doc.recompute()
